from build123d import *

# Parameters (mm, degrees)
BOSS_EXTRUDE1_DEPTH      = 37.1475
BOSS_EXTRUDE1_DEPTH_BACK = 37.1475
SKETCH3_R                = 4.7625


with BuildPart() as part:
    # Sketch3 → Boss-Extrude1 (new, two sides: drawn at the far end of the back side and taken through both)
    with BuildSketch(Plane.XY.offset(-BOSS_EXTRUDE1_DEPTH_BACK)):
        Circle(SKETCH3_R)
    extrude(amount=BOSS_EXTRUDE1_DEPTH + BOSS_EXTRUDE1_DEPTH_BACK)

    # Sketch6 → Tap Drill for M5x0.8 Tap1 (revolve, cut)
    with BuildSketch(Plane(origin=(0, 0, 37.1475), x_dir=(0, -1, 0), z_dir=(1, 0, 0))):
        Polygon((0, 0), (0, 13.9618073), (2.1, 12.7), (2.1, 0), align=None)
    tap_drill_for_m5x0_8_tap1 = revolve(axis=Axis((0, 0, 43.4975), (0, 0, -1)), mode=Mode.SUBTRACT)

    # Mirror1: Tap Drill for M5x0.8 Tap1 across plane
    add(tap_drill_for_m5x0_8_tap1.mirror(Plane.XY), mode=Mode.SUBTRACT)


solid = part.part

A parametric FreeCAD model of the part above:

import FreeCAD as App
import Part
import Sketcher

V = App.Vector
Q = App.Units.Quantity


def add_polygon(sketch, points):
    """Adds a closed chain of lines whose ends are joined by coincident constraints."""
    first, n = sketch.GeometryCount, len(points)
    for a, b in zip(points, points[1:] + points[:1]):
        sketch.addGeometry(Part.LineSegment(App.Vector(*a, 0), App.Vector(*b, 0)), False)
    for i in range(n):
        sketch.addConstraint(Sketcher.Constraint("Coincident", first + i, 2, first + (i + 1) % n, 1))

doc = App.newDocument("Part")
params = doc.addObject("Spreadsheet::Sheet", "Params")
for row, (alias, value) in enumerate([
    ("sketch1_diameter", "0.375 in"),
    ("pad1_length", "1.4625 in"),
    ("pad1_length2", "1.4625 in"),
    ("sketch2_height", "0.5 in"),
    ("groove_angle", "360 deg"),
], start=1):
    params.set(f"A{row}", alias)
    params.set(f"B{row}", "=" + value)
    params.setAlias(f"B{row}", alias)

body = doc.addObject("PartDesign::Body", "Body")

sketch1 = body.newObject("Sketcher::SketchObject", "Sketch")
sketch1.AttachmentSupport = (doc.getObject("XY_Plane"), [""])
sketch1.MapMode = "FlatFace"
sketch1.addGeometry(Part.Circle(V(0, 0, 0), V(0, 0, 1), 4.8), False)
sketch1.addConstraint(Sketcher.Constraint("Coincident", 0, 3, -1, 1))
sketch1.addConstraint(Sketcher.Constraint("Diameter", 0, Q("0.375 in")))
sketch1.setExpression("Constraints[1]", "Params.sketch1_diameter")
pad1 = body.newObject("PartDesign::Pad", "Pad")
pad1.Profile = sketch1
pad1.Type = "TwoLengths"
pad1.setExpression("Length", "Params.pad1_length")
pad1.setExpression("Length2", "Params.pad1_length2")

sketch2 = body.newObject("Sketcher::SketchObject", "Sketch001")
sketch2.AttachmentSupport = (doc.getObject("YZ_Plane"), [""])
sketch2.MapMode = "FlatFace"
add_polygon(sketch2, [(0, 23.2), (0, 37.1), (-2.1, 37.1), (-2.1, 24.4)])
sketch2.addConstraint(Sketcher.Constraint("Vertical", 0))
sketch2.addConstraint(Sketcher.Constraint("Horizontal", 1))
sketch2.addConstraint(Sketcher.Constraint("Vertical", 2))
sketch2.addConstraint(Sketcher.Constraint("PointOnObject", 0, 2, -2))
sketch2.addConstraint(Sketcher.Constraint("DistanceY", 2, 2, 2, 1, Q("0.5 in")))
sketch2.addConstraint(Sketcher.Constraint("Angle", 3, Q("-31 deg")))
sketch2.addConstraint(Sketcher.Constraint("DistanceX", 1, 2, 1, 1, 2.1))
sketch2.addConstraint(Sketcher.Constraint("DistanceY", -1, 1, 0, 2, Q("1.4625 in")))
sketch2.setExpression("Constraints[8]", "Params.sketch2_height")
groove = body.newObject("PartDesign::Groove", "Groove")
groove.Profile = sketch2
groove.ReferenceAxis = (sketch2, ["V_Axis"])
groove.setExpression("Angle", "Params.groove_angle")
doc.recompute()

mirrored = body.newObject("PartDesign::Mirrored", "Mirrored")
mirrored.Originals = [groove]
mirrored.MirrorPlane = (doc.getObject("XY_Plane"), [""])
body.Tip = mirrored

doc.recompute()
